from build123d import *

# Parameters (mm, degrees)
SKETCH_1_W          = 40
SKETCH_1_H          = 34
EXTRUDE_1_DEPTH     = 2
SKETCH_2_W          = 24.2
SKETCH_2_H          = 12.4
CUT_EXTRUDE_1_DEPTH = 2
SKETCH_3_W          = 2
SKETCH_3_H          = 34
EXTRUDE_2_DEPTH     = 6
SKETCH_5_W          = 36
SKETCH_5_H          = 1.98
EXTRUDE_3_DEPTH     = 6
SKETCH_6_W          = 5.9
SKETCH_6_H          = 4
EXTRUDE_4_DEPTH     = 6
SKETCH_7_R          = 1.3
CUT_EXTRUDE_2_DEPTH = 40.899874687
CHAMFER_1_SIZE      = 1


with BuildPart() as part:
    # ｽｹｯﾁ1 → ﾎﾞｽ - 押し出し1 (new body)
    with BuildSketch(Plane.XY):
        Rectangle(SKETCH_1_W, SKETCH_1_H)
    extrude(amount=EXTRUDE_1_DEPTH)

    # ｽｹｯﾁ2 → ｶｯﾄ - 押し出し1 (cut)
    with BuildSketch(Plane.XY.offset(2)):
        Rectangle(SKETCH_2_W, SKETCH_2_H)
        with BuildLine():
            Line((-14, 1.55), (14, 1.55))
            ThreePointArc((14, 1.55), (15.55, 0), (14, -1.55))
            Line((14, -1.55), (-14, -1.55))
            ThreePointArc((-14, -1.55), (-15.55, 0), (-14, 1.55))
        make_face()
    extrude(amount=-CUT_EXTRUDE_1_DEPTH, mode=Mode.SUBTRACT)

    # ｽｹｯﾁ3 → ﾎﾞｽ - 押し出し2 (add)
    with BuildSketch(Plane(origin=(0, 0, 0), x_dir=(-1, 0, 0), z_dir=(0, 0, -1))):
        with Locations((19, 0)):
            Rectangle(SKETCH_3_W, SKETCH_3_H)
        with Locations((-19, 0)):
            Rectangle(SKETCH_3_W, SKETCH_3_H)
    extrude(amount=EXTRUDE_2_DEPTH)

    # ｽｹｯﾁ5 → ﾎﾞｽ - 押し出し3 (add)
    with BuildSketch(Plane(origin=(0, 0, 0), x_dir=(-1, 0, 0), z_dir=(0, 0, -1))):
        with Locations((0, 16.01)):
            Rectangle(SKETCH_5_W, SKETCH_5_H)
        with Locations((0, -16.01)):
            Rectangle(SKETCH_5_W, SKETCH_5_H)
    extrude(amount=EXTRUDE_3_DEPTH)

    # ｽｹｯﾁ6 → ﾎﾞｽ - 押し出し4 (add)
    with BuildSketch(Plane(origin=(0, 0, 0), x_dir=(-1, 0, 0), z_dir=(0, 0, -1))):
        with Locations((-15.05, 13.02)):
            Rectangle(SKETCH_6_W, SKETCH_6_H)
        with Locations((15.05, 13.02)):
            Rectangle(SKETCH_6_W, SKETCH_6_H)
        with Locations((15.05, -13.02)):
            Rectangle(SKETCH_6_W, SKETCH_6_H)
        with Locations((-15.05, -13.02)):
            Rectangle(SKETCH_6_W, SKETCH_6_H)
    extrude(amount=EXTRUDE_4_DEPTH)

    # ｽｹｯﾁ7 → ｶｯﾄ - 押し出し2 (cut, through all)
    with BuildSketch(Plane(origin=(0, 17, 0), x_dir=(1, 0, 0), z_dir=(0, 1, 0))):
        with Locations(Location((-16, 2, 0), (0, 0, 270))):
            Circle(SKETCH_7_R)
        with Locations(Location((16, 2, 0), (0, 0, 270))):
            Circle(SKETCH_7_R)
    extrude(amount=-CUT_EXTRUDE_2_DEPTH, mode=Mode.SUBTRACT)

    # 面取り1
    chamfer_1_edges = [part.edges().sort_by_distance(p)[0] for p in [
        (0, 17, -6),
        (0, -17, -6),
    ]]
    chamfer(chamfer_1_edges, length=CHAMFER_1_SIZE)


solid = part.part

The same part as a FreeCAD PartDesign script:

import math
import FreeCAD as App
import Part
import Sketcher


def edges_at(feature, points):
    """Names of the edges that pass closest to the given points."""
    edges = feature.Shape.Edges
    near = lambda p: min(range(len(edges)), key=lambda i: edges[i].distToShape(Part.Vertex(*p))[0])
    return sorted({f"Edge{near(p) + 1}" for p in points})

doc = App.newDocument("Part")
body = doc.addObject("PartDesign::Body", "Body")

# Sketch on XY plane
sketch1 = body.newObject("Sketcher::SketchObject", "Sketch")
sketch1.AttachmentSupport = (doc.getObject("XY_Plane"), [""])
sketch1.MapMode = "FlatFace"
sketch1.addGeometry([
    Part.LineSegment(App.Vector(-20, 17, 0), App.Vector(-20, -17, 0)),
    Part.LineSegment(App.Vector(-20, -17, 0), App.Vector(20, -17, 0)),
    Part.LineSegment(App.Vector(20, -17, 0), App.Vector(20, 17, 0)),
    Part.LineSegment(App.Vector(20, 17, 0), App.Vector(-20, 17, 0)),
], False)
sketch1.addConstraint([
    Sketcher.Constraint("Coincident", 0, 2, 1, 1),
    Sketcher.Constraint("Coincident", 1, 2, 2, 1),
    Sketcher.Constraint("Coincident", 2, 2, 3, 1),
    Sketcher.Constraint("Coincident", 3, 2, 0, 1),
    Sketcher.Constraint("Vertical", 0),
    Sketcher.Constraint("Horizontal", 1),
    Sketcher.Constraint("Vertical", 2),
    Sketcher.Constraint("Horizontal", 3),
    Sketcher.Constraint("Symmetric", 0, 2, 2, 2, -1, 1),
    Sketcher.Constraint("DistanceX", 1, 1, 1, 2, 40.0),
    Sketcher.Constraint("DistanceY", 0, 2, 0, 1, 34.0),
])
pad1 = body.newObject("PartDesign::Pad", "Pad")
pad1.Profile = sketch1
pad1.Length = 2

# Sketch on XY plane
sketch2 = body.newObject("Sketcher::SketchObject", "Sketch001")
sketch2.AttachmentSupport = (doc.getObject("XY_Plane"), [""])
sketch2.MapMode = "FlatFace"
sketch2.AttachmentOffset = App.Placement(App.Vector(0, 0, 2), App.Rotation())
sketch2.addGeometry([
    Part.LineSegment(App.Vector(-12.1, -1.6, 0), App.Vector(-12.1, -6.2, 0)),  # 0
    Part.LineSegment(App.Vector(-12.1, -6.2, 0), App.Vector(12.1, -6.2, 0)),  # 1
    Part.LineSegment(App.Vector(12.1, -6.2, 0), App.Vector(12.1, -1.6, 0)),  # 2
    Part.LineSegment(App.Vector(12.1, -1.6, 0), App.Vector(14, -1.6, 0)),  # 3
    Part.ArcOfCircle(Part.Circle(App.Vector(14, 0, 0), App.Vector(0, 0, 1), 1.6), math.radians(-90), math.radians(90)),  # 4
    Part.LineSegment(App.Vector(14, 1.6, 0), App.Vector(12.1, 1.6, 0)),  # 5
    Part.LineSegment(App.Vector(12.1, 1.6, 0), App.Vector(12.1, 6.2, 0)),  # 6
    Part.LineSegment(App.Vector(12.1, 6.2, 0), App.Vector(-12.1, 6.2, 0)),  # 7
    Part.LineSegment(App.Vector(-12.1, 6.2, 0), App.Vector(-12.1, 1.6, 0)),  # 8
    Part.LineSegment(App.Vector(-12.1, 1.6, 0), App.Vector(-14, 1.6, 0)),  # 9
    Part.ArcOfCircle(Part.Circle(App.Vector(-14, 0, 0), App.Vector(0, 0, 1), 1.6), math.radians(90), math.radians(270)),  # 10
    Part.LineSegment(App.Vector(-14, -1.6, 0), App.Vector(-12.1, -1.6, 0)),  # 11
], False)
sketch2.addConstraint([
    Sketcher.Constraint("Coincident", 0, 2, 1, 1),
    Sketcher.Constraint("Coincident", 1, 2, 2, 1),
    Sketcher.Constraint("Coincident", 2, 2, 3, 1),
    Sketcher.Constraint("Tangent", 3, 2, 4, 1),
    Sketcher.Constraint("Tangent", 4, 2, 5, 1),
    Sketcher.Constraint("Coincident", 5, 2, 6, 1),
    Sketcher.Constraint("Coincident", 6, 2, 7, 1),
    Sketcher.Constraint("Coincident", 7, 2, 8, 1),
    Sketcher.Constraint("Coincident", 8, 2, 9, 1),
    Sketcher.Constraint("Tangent", 9, 2, 10, 1),
    Sketcher.Constraint("Tangent", 10, 2, 11, 1),
    Sketcher.Constraint("Coincident", 11, 2, 0, 1),
    Sketcher.Constraint("Vertical", 0),
    Sketcher.Constraint("Horizontal", 1),
    Sketcher.Constraint("Vertical", 2),
    Sketcher.Constraint("Horizontal", 3),
    Sketcher.Constraint("Horizontal", 5),
    Sketcher.Constraint("Vertical", 6),
    Sketcher.Constraint("Horizontal", 7),
    Sketcher.Constraint("Vertical", 8),
    Sketcher.Constraint("Horizontal", 9),
    Sketcher.Constraint("Horizontal", 11),
    Sketcher.Constraint("Equal", 4, 10),
    Sketcher.Constraint("Symmetric", 4, 3, 10, 3, -1, 1),
    Sketcher.Constraint("Symmetric", 0, 2, 6, 2, -1, 1),
    Sketcher.Constraint("Symmetric", 5, 2, 8, 2, -2),
    Sketcher.Constraint("Vertical", 2, 2, 5, 2),
    Sketcher.Constraint("Radius", 4, 1.55),
    Sketcher.Constraint("DistanceX", 1, 1, 1, 2, 24.2),
    Sketcher.Constraint("DistanceX", 3, 1, 3, 2, 1.9),
    Sketcher.Constraint("DistanceY", 0, 2, 0, 1, 4.65),
])
pocket1 = body.newObject("PartDesign::Pocket", "Pocket")
pocket1.Profile = sketch2
pocket1.Length = 2

# Sketch on XY plane
sketch3 = body.newObject("Sketcher::SketchObject", "Sketch002")
sketch3.AttachmentSupport = (doc.getObject("XY_Plane"), [""])
sketch3.MapMode = "FlatFace"
sketch3.addGeometry([
    Part.LineSegment(App.Vector(-18, 17, 0), App.Vector(-18, -17, 0)),  # 0
    Part.LineSegment(App.Vector(-18, -17, 0), App.Vector(-20, -17, 0)),  # 1
    Part.LineSegment(App.Vector(-20, -17, 0), App.Vector(-20, 17, 0)),  # 2
    Part.LineSegment(App.Vector(-20, 17, 0), App.Vector(-18, 17, 0)),  # 3
    Part.LineSegment(App.Vector(20, 17, 0), App.Vector(20, -17, 0)),  # 4
    Part.LineSegment(App.Vector(20, -17, 0), App.Vector(18, -17, 0)),  # 5
    Part.LineSegment(App.Vector(18, -17, 0), App.Vector(18, 17, 0)),  # 6
    Part.LineSegment(App.Vector(18, 17, 0), App.Vector(20, 17, 0)),  # 7
], False)
sketch3.addConstraint([
    Sketcher.Constraint("Coincident", 0, 2, 1, 1),
    Sketcher.Constraint("Coincident", 1, 2, 2, 1),
    Sketcher.Constraint("Coincident", 2, 2, 3, 1),
    Sketcher.Constraint("Coincident", 3, 2, 0, 1),
    Sketcher.Constraint("Coincident", 4, 2, 5, 1),
    Sketcher.Constraint("Coincident", 5, 2, 6, 1),
    Sketcher.Constraint("Coincident", 6, 2, 7, 1),
    Sketcher.Constraint("Coincident", 7, 2, 4, 1),
    Sketcher.Constraint("Vertical", 0),
    Sketcher.Constraint("Horizontal", 1),
    Sketcher.Constraint("Vertical", 2),
    Sketcher.Constraint("Horizontal", 3),
    Sketcher.Constraint("Vertical", 4),
    Sketcher.Constraint("Horizontal", 5),
    Sketcher.Constraint("Vertical", 6),
    Sketcher.Constraint("Horizontal", 7),
    Sketcher.Constraint("Symmetric", 2, 2, 4, 2, -1, 1),
    Sketcher.Constraint("Symmetric", 0, 2, 6, 2, -1, 1),
    Sketcher.Constraint("Horizontal", 1, 2, 4, 2),
    Sketcher.Constraint("DistanceX", 1, 2, 1, 1, 2.0),
    Sketcher.Constraint("DistanceY", 0, 2, 0, 1, 34.0),
    Sketcher.Constraint("DistanceX", 0, 2, -1, 1, 18.0),
])
pad2 = body.newObject("PartDesign::Pad", "Pad001")
pad2.Profile = sketch3
pad2.Length = 6
pad2.Reversed = True

# Sketch on XY plane
sketch4 = body.newObject("Sketcher::SketchObject", "Sketch003")
sketch4.AttachmentSupport = (doc.getObject("XY_Plane"), [""])
sketch4.MapMode = "FlatFace"
sketch4.addGeometry([
    Part.LineSegment(App.Vector(18, 17, 0), App.Vector(18, 15, 0)),  # 0
    Part.LineSegment(App.Vector(18, 15, 0), App.Vector(-18, 15, 0)),  # 1
    Part.LineSegment(App.Vector(-18, 15, 0), App.Vector(-18, 17, 0)),  # 2
    Part.LineSegment(App.Vector(-18, 17, 0), App.Vector(18, 17, 0)),  # 3
    Part.LineSegment(App.Vector(18, -15, 0), App.Vector(18, -17, 0)),  # 4
    Part.LineSegment(App.Vector(18, -17, 0), App.Vector(-18, -17, 0)),  # 5
    Part.LineSegment(App.Vector(-18, -17, 0), App.Vector(-18, -15, 0)),  # 6
    Part.LineSegment(App.Vector(-18, -15, 0), App.Vector(18, -15, 0)),  # 7
], False)
sketch4.addConstraint([
    Sketcher.Constraint("Coincident", 0, 2, 1, 1),
    Sketcher.Constraint("Coincident", 1, 2, 2, 1),
    Sketcher.Constraint("Coincident", 2, 2, 3, 1),
    Sketcher.Constraint("Coincident", 3, 2, 0, 1),
    Sketcher.Constraint("Coincident", 4, 2, 5, 1),
    Sketcher.Constraint("Coincident", 5, 2, 6, 1),
    Sketcher.Constraint("Coincident", 6, 2, 7, 1),
    Sketcher.Constraint("Coincident", 7, 2, 4, 1),
    Sketcher.Constraint("Vertical", 0),
    Sketcher.Constraint("Horizontal", 1),
    Sketcher.Constraint("Vertical", 2),
    Sketcher.Constraint("Horizontal", 3),
    Sketcher.Constraint("Vertical", 4),
    Sketcher.Constraint("Horizontal", 5),
    Sketcher.Constraint("Vertical", 6),
    Sketcher.Constraint("Horizontal", 7),
    Sketcher.Constraint("Symmetric", 2, 2, 4, 2, -1, 1),
    Sketcher.Constraint("Symmetric", 0, 2, 6, 2, -1, 1),
    Sketcher.Constraint("Vertical", 3, 2, 4, 2),
    Sketcher.Constraint("DistanceX", 1, 2, 1, 1, 36.0),
    Sketcher.Constraint("DistanceY", -1, 1, 2, 2, 17.0),
    Sketcher.Constraint("DistanceY", 0, 2, 0, 1, 1.98),
])
pad3 = body.newObject("PartDesign::Pad", "Pad002")
pad3.Profile = sketch4
pad3.Length = 6
pad3.Reversed = True

# Sketch on XY plane
sketch5 = body.newObject("Sketcher::SketchObject", "Sketch004")
sketch5.AttachmentSupport = (doc.getObject("XY_Plane"), [""])
sketch5.MapMode = "FlatFace"
sketch5.addGeometry([
    Part.LineSegment(App.Vector(18, 15, 0), App.Vector(18, 11, 0)),  # 0
    Part.LineSegment(App.Vector(18, 11, 0), App.Vector(12.1, 11, 0)),  # 1
    Part.LineSegment(App.Vector(12.1, 11, 0), App.Vector(12.1, 15, 0)),  # 2
    Part.LineSegment(App.Vector(12.1, 15, 0), App.Vector(18, 15, 0)),  # 3
    Part.LineSegment(App.Vector(-12.1, 15, 0), App.Vector(-12.1, 11, 0)),  # 4
    Part.LineSegment(App.Vector(-12.1, 11, 0), App.Vector(-18, 11, 0)),  # 5
    Part.LineSegment(App.Vector(-18, 11, 0), App.Vector(-18, 15, 0)),  # 6
    Part.LineSegment(App.Vector(-18, 15, 0), App.Vector(-12.1, 15, 0)),  # 7
    Part.LineSegment(App.Vector(-12.1, -11, 0), App.Vector(-12.1, -15, 0)),  # 8
    Part.LineSegment(App.Vector(-12.1, -15, 0), App.Vector(-18, -15, 0)),  # 9
    Part.LineSegment(App.Vector(-18, -15, 0), App.Vector(-18, -11, 0)),  # 10
    Part.LineSegment(App.Vector(-18, -11, 0), App.Vector(-12.1, -11, 0)),  # 11
    Part.LineSegment(App.Vector(18, -11, 0), App.Vector(18, -15, 0)),  # 12
    Part.LineSegment(App.Vector(18, -15, 0), App.Vector(12.1, -15, 0)),  # 13
    Part.LineSegment(App.Vector(12.1, -15, 0), App.Vector(12.1, -11, 0)),  # 14
    Part.LineSegment(App.Vector(12.1, -11, 0), App.Vector(18, -11, 0)),  # 15
], False)
sketch5.addConstraint([
    Sketcher.Constraint("Coincident", 0, 2, 1, 1),
    Sketcher.Constraint("Coincident", 1, 2, 2, 1),
    Sketcher.Constraint("Coincident", 2, 2, 3, 1),
    Sketcher.Constraint("Coincident", 3, 2, 0, 1),
    Sketcher.Constraint("Coincident", 4, 2, 5, 1),
    Sketcher.Constraint("Coincident", 5, 2, 6, 1),
    Sketcher.Constraint("Coincident", 6, 2, 7, 1),
    Sketcher.Constraint("Coincident", 7, 2, 4, 1),
    Sketcher.Constraint("Coincident", 8, 2, 9, 1),
    Sketcher.Constraint("Coincident", 9, 2, 10, 1),
    Sketcher.Constraint("Coincident", 10, 2, 11, 1),
    Sketcher.Constraint("Coincident", 11, 2, 8, 1),
    Sketcher.Constraint("Coincident", 12, 2, 13, 1),
    Sketcher.Constraint("Coincident", 13, 2, 14, 1),
    Sketcher.Constraint("Coincident", 14, 2, 15, 1),
    Sketcher.Constraint("Coincident", 15, 2, 12, 1),
    Sketcher.Constraint("Vertical", 0),
    Sketcher.Constraint("Horizontal", 1),
    Sketcher.Constraint("Vertical", 2),
    Sketcher.Constraint("Horizontal", 3),
    Sketcher.Constraint("Vertical", 4),
    Sketcher.Constraint("Horizontal", 5),
    Sketcher.Constraint("Vertical", 6),
    Sketcher.Constraint("Horizontal", 7),
    Sketcher.Constraint("Vertical", 8),
    Sketcher.Constraint("Horizontal", 9),
    Sketcher.Constraint("Vertical", 10),
    Sketcher.Constraint("Horizontal", 11),
    Sketcher.Constraint("Vertical", 12),
    Sketcher.Constraint("Horizontal", 13),
    Sketcher.Constraint("Vertical", 14),
    Sketcher.Constraint("Horizontal", 15),
    Sketcher.Constraint("Symmetric", 2, 2, 8, 2, -1, 1),
    Sketcher.Constraint("Symmetric", 0, 2, 10, 2, -1, 1),
    Sketcher.Constraint("Symmetric", 6, 2, 12, 2, -1, 1),
    Sketcher.Constraint("Symmetric", 4, 2, 14, 2, -1, 1),
    Sketcher.Constraint("Symmetric", 1, 2, 4, 2, -2),
    Sketcher.Constraint("Symmetric", 3, 2, 6, 2, -2),
    Sketcher.Constraint("DistanceY", 0, 2, 0, 1, 4.0),
    Sketcher.Constraint("DistanceX", 1, 2, 1, 1, 5.9),
    Sketcher.Constraint("DistanceX", -1, 1, 0, 2, 18.0),
    Sketcher.Constraint("DistanceY", -1, 1, 0, 2, 11.02),
])
pad4 = body.newObject("PartDesign::Pad", "Pad003")
pad4.Profile = sketch5
pad4.Length = 6
pad4.Reversed = True

# Sketch on XZ plane
sketch6 = body.newObject("Sketcher::SketchObject", "Sketch005")
sketch6.AttachmentSupport = (doc.getObject("XZ_Plane"), [""])
sketch6.MapMode = "FlatFace"
sketch6.AttachmentOffset = App.Placement(App.Vector(0, 0, -17), App.Rotation())
sketch6.addGeometry([
    Part.Circle(App.Vector(-16, -2, 0), App.Vector(0, 0, 1), 1.3),
    Part.Circle(App.Vector(16, -2, 0), App.Vector(0, 0, 1), 1.3),
], False)
sketch6.addConstraint([
    Sketcher.Constraint("Equal", 0, 1),
    Sketcher.Constraint("Symmetric", 0, 3, 1, 3, -2),
    Sketcher.Constraint("Diameter", 0, 2.6),
    Sketcher.Constraint("DistanceX", 0, 3, -1, 1, 16.0),
    Sketcher.Constraint("DistanceY", 0, 3, -1, 1, 2.0),
])
pocket2 = body.newObject("PartDesign::Pocket", "Pocket001")
pocket2.Profile = sketch6
pocket2.Type = "ThroughAll"
pocket2.Reversed = True
doc.recompute()

chamfer = body.newObject("PartDesign::Chamfer", "Chamfer")
chamfer.Base = (pocket2, edges_at(pocket2, [(0, 17, -6), (0, -17, -6)]))
chamfer.Size = 1

doc.recompute()
